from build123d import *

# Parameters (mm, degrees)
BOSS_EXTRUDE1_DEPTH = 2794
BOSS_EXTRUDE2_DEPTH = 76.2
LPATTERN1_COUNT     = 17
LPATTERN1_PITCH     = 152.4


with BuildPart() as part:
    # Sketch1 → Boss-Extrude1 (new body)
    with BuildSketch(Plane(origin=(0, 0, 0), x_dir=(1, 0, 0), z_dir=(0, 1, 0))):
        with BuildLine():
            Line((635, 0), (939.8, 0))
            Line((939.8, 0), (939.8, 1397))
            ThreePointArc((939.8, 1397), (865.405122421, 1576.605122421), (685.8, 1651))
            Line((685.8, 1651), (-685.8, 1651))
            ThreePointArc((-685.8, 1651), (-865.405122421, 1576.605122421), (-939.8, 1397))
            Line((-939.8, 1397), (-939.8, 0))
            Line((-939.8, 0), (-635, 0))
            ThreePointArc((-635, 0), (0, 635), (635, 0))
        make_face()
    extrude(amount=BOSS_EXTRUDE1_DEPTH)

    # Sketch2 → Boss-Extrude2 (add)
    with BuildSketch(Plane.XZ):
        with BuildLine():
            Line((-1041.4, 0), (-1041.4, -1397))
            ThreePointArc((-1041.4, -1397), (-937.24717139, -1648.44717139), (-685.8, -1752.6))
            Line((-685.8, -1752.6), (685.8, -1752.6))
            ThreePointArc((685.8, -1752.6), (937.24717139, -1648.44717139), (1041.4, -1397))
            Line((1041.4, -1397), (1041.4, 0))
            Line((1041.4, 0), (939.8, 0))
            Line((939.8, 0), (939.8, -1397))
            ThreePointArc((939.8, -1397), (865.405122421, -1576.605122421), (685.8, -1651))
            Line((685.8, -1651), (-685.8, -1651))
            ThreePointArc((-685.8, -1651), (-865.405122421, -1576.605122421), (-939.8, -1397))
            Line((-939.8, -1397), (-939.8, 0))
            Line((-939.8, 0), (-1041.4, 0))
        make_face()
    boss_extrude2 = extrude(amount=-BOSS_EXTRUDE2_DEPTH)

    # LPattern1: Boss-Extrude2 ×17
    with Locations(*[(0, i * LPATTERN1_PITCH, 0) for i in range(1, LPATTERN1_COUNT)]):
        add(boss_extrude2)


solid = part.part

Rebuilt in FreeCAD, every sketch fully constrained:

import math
import FreeCAD as App
import Part
import Sketcher
from FreeCAD import Vector
Q = App.Units.Quantity

doc = App.newDocument("Part")
body = doc.addObject("PartDesign::Body", "Body")

sketch1 = body.newObject("Sketcher::SketchObject", "Sketch")
sketch1.AttachmentSupport = (doc.getObject("XZ_Plane"), [""])
sketch1.MapMode = "FlatFace"
sketch1.addGeometry([
    Part.LineSegment(Vector(635, 0, 0), Vector(939.8, 0, 0)),
    Part.LineSegment(Vector(939.8, 0, 0), Vector(939.8, -1397, 0)),
    Part.ArcOfCircle(Part.Circle(Vector(685.8, -1397, 0), Vector(0, 0, 1), 254), math.radians(-90), math.radians(0)),
    Part.LineSegment(Vector(685.8, -1651, 0), Vector(-685.8, -1651, 0)),
    Part.ArcOfCircle(Part.Circle(Vector(-685.8, -1397, 0), Vector(0, 0, 1), 254), math.radians(-180), math.radians(-90)),
    Part.LineSegment(Vector(-939.8, -1397, 0), Vector(-939.8, 0, 0)),
    Part.LineSegment(Vector(-939.8, 0, 0), Vector(-635, 0, 0)),
    Part.ArcOfCircle(Part.Circle(Vector(0, 0, 0), Vector(0, 0, 1), 635), math.radians(180), math.radians(360)),
], False)
sketch1.addConstraint([
    Sketcher.Constraint("Coincident", 0, 2, 1, 1),
    Sketcher.Constraint("Tangent", 1, 2, 2, 2),
    Sketcher.Constraint("Tangent", 2, 1, 3, 1),
    Sketcher.Constraint("Tangent", 3, 2, 4, 2),
    Sketcher.Constraint("Tangent", 4, 1, 5, 1),
    Sketcher.Constraint("Coincident", 5, 2, 6, 1),
    Sketcher.Constraint("Coincident", 6, 2, 7, 1),
    Sketcher.Constraint("Coincident", 7, 2, 0, 1),
    Sketcher.Constraint("Horizontal", 0),
    Sketcher.Constraint("Vertical", 1),
    Sketcher.Constraint("Horizontal", 3),
    Sketcher.Constraint("Vertical", 5),
    Sketcher.Constraint("Horizontal", 6),
    Sketcher.Constraint("Coincident", 7, 3, -1, 1),
    Sketcher.Constraint("Equal", 2, 4),
    Sketcher.Constraint("Symmetric", 0, 2, 5, 2, -1, 1),
    Sketcher.Constraint("PointOnObject", 0, 2, -1),
    Sketcher.Constraint("Radius", 2, Q("10 in")),
    Sketcher.Constraint("Radius", 7, Q("25 in")),
    Sketcher.Constraint("DistanceX", 0, 1, 0, 2, Q("12 in")),
    Sketcher.Constraint("DistanceY", 1, 2, 1, 1, Q("55 in")),
])
pad1 = body.newObject("PartDesign::Pad", "Pad")
pad1.Profile = sketch1
pad1.Length = Q("110 in")
pad1.Reversed = True

sketch2 = body.newObject("Sketcher::SketchObject", "Sketch001")
sketch2.AttachmentSupport = (doc.getObject("XZ_Plane"), [""])
sketch2.MapMode = "FlatFace"
sketch2.addGeometry([
    Part.LineSegment(Vector(-1041.4, 0, 0), Vector(-1041.4, -1397, 0)),
    Part.ArcOfCircle(Part.Circle(Vector(-685.8, -1397, 0), Vector(0, 0, 1), 355.6), math.radians(180), math.radians(270)),
    Part.LineSegment(Vector(-685.8, -1752.6, 0), Vector(685.8, -1752.6, 0)),
    Part.ArcOfCircle(Part.Circle(Vector(685.8, -1397, 0), Vector(0, 0, 1), 355.6), math.radians(-90), math.radians(0)),
    Part.LineSegment(Vector(1041.4, -1397, 0), Vector(1041.4, 0, 0)),
    Part.LineSegment(Vector(1041.4, 0, 0), Vector(939.8, 0, 0)),
    Part.LineSegment(Vector(939.8, 0, 0), Vector(939.8, -1397, 0)),
    Part.ArcOfCircle(Part.Circle(Vector(685.8, -1397, 0), Vector(0, 0, 1), 254), math.radians(-90), math.radians(0)),
    Part.LineSegment(Vector(685.8, -1651, 0), Vector(-685.8, -1651, 0)),
    Part.ArcOfCircle(Part.Circle(Vector(-685.8, -1397, 0), Vector(0, 0, 1), 254), math.radians(-180), math.radians(-90)),
    Part.LineSegment(Vector(-939.8, -1397, 0), Vector(-939.8, 0, 0)),
    Part.LineSegment(Vector(-939.8, 0, 0), Vector(-1041.4, 0, 0)),
], False)
sketch2.addConstraint([
    Sketcher.Constraint("Tangent", 0, 2, 1, 1),
    Sketcher.Constraint("Tangent", 1, 2, 2, 1),
    Sketcher.Constraint("Tangent", 2, 2, 3, 1),
    Sketcher.Constraint("Tangent", 3, 2, 4, 1),
    Sketcher.Constraint("Coincident", 4, 2, 5, 1),
    Sketcher.Constraint("Coincident", 5, 2, 6, 1),
    Sketcher.Constraint("Tangent", 6, 2, 7, 2),
    Sketcher.Constraint("Tangent", 7, 1, 8, 1),
    Sketcher.Constraint("Tangent", 8, 2, 9, 2),
    Sketcher.Constraint("Tangent", 9, 1, 10, 1),
    Sketcher.Constraint("Coincident", 10, 2, 11, 1),
    Sketcher.Constraint("Coincident", 11, 2, 0, 1),
    Sketcher.Constraint("Vertical", 0),
    Sketcher.Constraint("Horizontal", 2),
    Sketcher.Constraint("Vertical", 4),
    Sketcher.Constraint("Horizontal", 5),
    Sketcher.Constraint("Vertical", 6),
    Sketcher.Constraint("Horizontal", 8),
    Sketcher.Constraint("Vertical", 10),
    Sketcher.Constraint("Horizontal", 11),
    Sketcher.Constraint("Coincident", 7, 3, 3, 3),
    Sketcher.Constraint("Coincident", 9, 3, 1, 3),
    Sketcher.Constraint("Equal", 1, 3),
    Sketcher.Constraint("Symmetric", 5, 2, 10, 2, -1, 1),
    Sketcher.Constraint("PointOnObject", 4, 2, -1),
    Sketcher.Constraint("Radius", 1, Q("14 in")),
    Sketcher.Constraint("Radius", 7, Q("10 in")),
    Sketcher.Constraint("DistanceX", 2, 1, 2, 2, Q("54 in")),
    Sketcher.Constraint("DistanceY", 0, 2, 0, 1, Q("55 in")),
])
pad2 = body.newObject("PartDesign::Pad", "Pad001")
pad2.Profile = sketch2
pad2.Length = Q("3 in")
pad2.Reversed = True
doc.recompute()

linearpattern = body.newObject("PartDesign::LinearPattern", "LinearPattern")
linearpattern.Originals = [pad2]
linearpattern.Direction = (doc.getObject("Y_Axis"), [""])
linearpattern.Mode = "offset"
linearpattern.Offset = Q("6 in")
linearpattern.Occurrences = 17
body.Tip = linearpattern

doc.recompute()
